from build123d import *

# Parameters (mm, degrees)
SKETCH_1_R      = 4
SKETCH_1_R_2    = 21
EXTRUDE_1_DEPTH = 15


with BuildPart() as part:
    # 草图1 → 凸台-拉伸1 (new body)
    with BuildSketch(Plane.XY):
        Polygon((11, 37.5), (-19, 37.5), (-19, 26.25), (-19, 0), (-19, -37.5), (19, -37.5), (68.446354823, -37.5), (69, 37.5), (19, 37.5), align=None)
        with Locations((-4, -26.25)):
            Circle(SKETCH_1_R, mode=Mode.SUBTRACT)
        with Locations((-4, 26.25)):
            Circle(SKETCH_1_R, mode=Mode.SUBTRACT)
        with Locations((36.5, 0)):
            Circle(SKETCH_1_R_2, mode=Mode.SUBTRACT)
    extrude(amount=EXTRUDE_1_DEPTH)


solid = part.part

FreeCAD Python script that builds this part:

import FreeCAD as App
import Part
import Sketcher

V = App.Vector
Q = App.Units.Quantity


def add_polygon(sketch, points):
    """Adds a closed chain of lines whose ends are joined by coincident constraints."""
    first, n = sketch.GeometryCount, len(points)
    for a, b in zip(points, points[1:] + points[:1]):
        sketch.addGeometry(Part.LineSegment(App.Vector(*a, 0), App.Vector(*b, 0)), False)
    for i in range(n):
        sketch.addConstraint(Sketcher.Constraint("Coincident", first + i, 2, first + (i + 1) % n, 1))

doc = App.newDocument("Part")
body = doc.addObject("PartDesign::Body", "Body")

# Sketch on XY plane
sketch1 = doc.addObject("Sketcher::SketchObject", "Sketch")
body.addObject(sketch1)
sketch1.AttachmentSupport = (doc.XY_Plane, [""])
sketch1.MapMode = "FlatFace"
add_polygon(sketch1, [(-19, 37.5), (-19, -37.5), (68.4, -37.5), (69, 37.5)])  # lines 0-3
sketch1.addGeometry(Part.Circle(V(-4, -26.2, 0), V(0, 0, 1), 4), False)  # 4
sketch1.addGeometry(Part.Circle(V(-4, 26.2, 0), V(0, 0, 1), 4), False)  # 5
sketch1.addGeometry(Part.Circle(V(36.5, 0, 0), V(0, 0, 1), 21), False)  # 6
sketch1.addConstraint(Sketcher.Constraint("Vertical", 0))
sketch1.addConstraint(Sketcher.Constraint("Horizontal", 1))
sketch1.addConstraint(Sketcher.Constraint("Horizontal", 3))
sketch1.addConstraint(Sketcher.Constraint("Equal", 4, 5))
sketch1.addConstraint(Sketcher.Constraint("Symmetric", 4, 3, 5, 3, -1))
sketch1.addConstraint(Sketcher.Constraint("PointOnObject", 6, 3, -1))
sketch1.addConstraint(Sketcher.Constraint("Diameter", 4, Q("8 mm")))
sketch1.addConstraint(Sketcher.Constraint("Diameter", 6, Q("42 mm")))
sketch1.addConstraint(Sketcher.Constraint("DistanceX", 3, 2, 3, 1, Q("88 mm")))
sketch1.addConstraint(Sketcher.Constraint("DistanceY", 0, 2, 0, 1, Q("75 mm")))
sketch1.addConstraint(Sketcher.Constraint("DistanceX", 4, 3, -1, 1, Q("4 mm")))
sketch1.addConstraint(Sketcher.Constraint("DistanceX", 0, 2, -1, 1, Q("19 mm")))
sketch1.addConstraint(Sketcher.Constraint("DistanceX", -1, 1, 6, 3, Q("36.5 mm")))
sketch1.addConstraint(Sketcher.Constraint("DistanceY", 0, 2, -1, 1, Q("37.5 mm")))
sketch1.addConstraint(Sketcher.Constraint("DistanceY", 4, 3, 5, 3, Q("52.5 mm")))
sketch1.addConstraint(Sketcher.Constraint("DistanceX", 1, 1, 1, 2, Q("87.446355 mm")))
pad1 = doc.addObject("PartDesign::Pad", "Pad")
body.addObject(pad1)
pad1.Profile = sketch1
pad1.Length = 15

doc.recompute()
